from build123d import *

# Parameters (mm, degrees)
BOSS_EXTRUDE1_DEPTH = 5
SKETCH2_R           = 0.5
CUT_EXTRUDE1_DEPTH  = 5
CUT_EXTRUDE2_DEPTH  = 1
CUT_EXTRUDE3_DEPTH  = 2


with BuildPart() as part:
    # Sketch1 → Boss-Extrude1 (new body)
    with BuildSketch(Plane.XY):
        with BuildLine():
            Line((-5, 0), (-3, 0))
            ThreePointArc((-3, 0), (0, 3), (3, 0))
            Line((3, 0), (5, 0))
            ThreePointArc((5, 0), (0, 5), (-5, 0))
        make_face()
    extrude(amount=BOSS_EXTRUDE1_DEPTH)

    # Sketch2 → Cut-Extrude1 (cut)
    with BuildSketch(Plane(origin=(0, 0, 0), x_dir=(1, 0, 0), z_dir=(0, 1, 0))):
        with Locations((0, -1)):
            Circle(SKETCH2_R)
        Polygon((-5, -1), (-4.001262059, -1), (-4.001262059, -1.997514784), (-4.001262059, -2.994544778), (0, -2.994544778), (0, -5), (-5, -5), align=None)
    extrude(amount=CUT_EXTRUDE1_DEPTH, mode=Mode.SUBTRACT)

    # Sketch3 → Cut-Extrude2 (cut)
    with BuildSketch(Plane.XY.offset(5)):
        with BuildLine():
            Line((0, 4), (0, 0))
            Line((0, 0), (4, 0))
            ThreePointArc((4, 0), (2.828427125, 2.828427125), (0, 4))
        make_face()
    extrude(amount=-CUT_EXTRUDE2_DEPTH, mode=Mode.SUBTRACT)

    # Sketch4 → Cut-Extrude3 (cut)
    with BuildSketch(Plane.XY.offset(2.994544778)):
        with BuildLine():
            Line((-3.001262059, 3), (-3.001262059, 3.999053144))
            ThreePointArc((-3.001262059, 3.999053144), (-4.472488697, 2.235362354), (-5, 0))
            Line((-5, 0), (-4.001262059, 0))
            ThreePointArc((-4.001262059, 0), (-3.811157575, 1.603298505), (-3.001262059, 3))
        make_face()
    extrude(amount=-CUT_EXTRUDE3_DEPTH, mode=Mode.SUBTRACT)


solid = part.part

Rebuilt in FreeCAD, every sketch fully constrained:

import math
import FreeCAD as App
import Part
import Sketcher
Q = App.Units.Quantity


def add_polygon(sketch, points):
    """Adds a closed chain of lines whose ends are joined by coincident constraints."""
    first, n = sketch.GeometryCount, len(points)
    for a, b in zip(points, points[1:] + points[:1]):
        sketch.addGeometry(Part.LineSegment(App.Vector(*a, 0), App.Vector(*b, 0)), False)
    for i in range(n):
        sketch.addConstraint(Sketcher.Constraint("Coincident", first + i, 2, first + (i + 1) % n, 1))

doc = App.newDocument("Part")
body = doc.addObject("PartDesign::Body", "Body")

# Sketch on XY plane
sketch1 = body.newObject("Sketcher::SketchObject", "Sketch")
sketch1.AttachmentSupport = (doc.getObject("XY_Plane"), [""])
sketch1.MapMode = "FlatFace"
sketch1.addGeometry([
    Part.LineSegment(App.Vector(-5, 0, 0), App.Vector(-3, 0, 0)),
    Part.ArcOfCircle(Part.Circle(App.Vector(0, 0, 0), App.Vector(0, 0, 1), 3), math.radians(0), math.radians(180)),
    Part.LineSegment(App.Vector(3, 0, 0), App.Vector(5, 0, 0)),
    Part.ArcOfCircle(Part.Circle(App.Vector(0, 0, 0), App.Vector(0, 0, 1), 5), math.radians(0), math.radians(180)),
], False)
sketch1.addConstraint([
    Sketcher.Constraint("Coincident", 0, 2, 1, 2),
    Sketcher.Constraint("Coincident", 1, 1, 2, 1),
    Sketcher.Constraint("Coincident", 2, 2, 3, 1),
    Sketcher.Constraint("Coincident", 3, 2, 0, 1),
    Sketcher.Constraint("Horizontal", 0),
    Sketcher.Constraint("Horizontal", 2),
    Sketcher.Constraint("Coincident", 1, 3, -1, 1),
    Sketcher.Constraint("Coincident", 3, 3, -1, 1),
    Sketcher.Constraint("PointOnObject", 0, 2, -1),
    Sketcher.Constraint("PointOnObject", 1, 1, -1),
    Sketcher.Constraint("Radius", 1, Q("3 mm")),
    Sketcher.Constraint("Radius", 3, Q("5 mm")),
])
pad1 = body.newObject("PartDesign::Pad", "Pad")
pad1.Profile = sketch1
pad1.Length = 5

# Sketch on XZ plane
sketch2 = body.newObject("Sketcher::SketchObject", "Sketch001")
sketch2.AttachmentSupport = (doc.getObject("XZ_Plane"), [""])
sketch2.MapMode = "FlatFace"
sketch2.addGeometry(Part.Circle(App.Vector(0, 1, 0), App.Vector(0, 0, 1), 0.5), False)  # 0
add_polygon(sketch2, [(-4, 1), (-5, 1), (-5, 5), (0, 5), (0, 3), (-4, 3)])  # lines 1-6
sketch2.addConstraint([
    Sketcher.Constraint("Horizontal", 1),
    Sketcher.Constraint("Vertical", 2),
    Sketcher.Constraint("Horizontal", 3),
    Sketcher.Constraint("Vertical", 4),
    Sketcher.Constraint("Horizontal", 5),
    Sketcher.Constraint("Vertical", 6),
    Sketcher.Constraint("PointOnObject", 0, 3, -2),
    Sketcher.Constraint("PointOnObject", 3, 2, -2),
    Sketcher.Constraint("Horizontal", 0, 3, 1, 2),
    Sketcher.Constraint("Diameter", 0, Q("1 mm")),
    Sketcher.Constraint("DistanceX", 3, 1, 3, 2, Q("5 mm")),
    Sketcher.Constraint("DistanceY", 2, 1, 2, 2, Q("4 mm")),
    Sketcher.Constraint("DistanceY", -1, 1, 0, 3, Q("1 mm")),
    Sketcher.Constraint("DistanceX", 1, 2, 1, 1, Q("0.998738 mm")),
    Sketcher.Constraint("DistanceY", 4, 2, 4, 1, Q("2.005455 mm")),
])
pocket1 = body.newObject("PartDesign::Pocket", "Pocket")
pocket1.Profile = sketch2
pocket1.Length = 5

# Sketch on XY plane
sketch3 = body.newObject("Sketcher::SketchObject", "Sketch002")
sketch3.AttachmentSupport = (doc.getObject("XY_Plane"), [""])
sketch3.MapMode = "FlatFace"
sketch3.AttachmentOffset = App.Placement(App.Vector(0, 0, 5), App.Rotation())
sketch3.addGeometry([
    Part.LineSegment(App.Vector(0, 4, 0), App.Vector(0, 0, 0)),
    Part.LineSegment(App.Vector(0, 0, 0), App.Vector(4, 0, 0)),
    Part.ArcOfCircle(Part.Circle(App.Vector(0, 0, 0), App.Vector(0, 0, 1), 4), math.radians(0), math.radians(90)),
], False)
sketch3.addConstraint([
    Sketcher.Constraint("Coincident", 0, 2, 1, 1),
    Sketcher.Constraint("Coincident", 1, 2, 2, 1),
    Sketcher.Constraint("Coincident", 2, 2, 0, 1),
    Sketcher.Constraint("Vertical", 0),
    Sketcher.Constraint("Horizontal", 1),
    Sketcher.Constraint("Coincident", 2, 3, -1, 1),
    Sketcher.Constraint("Coincident", 0, 2, -1, 1),
    Sketcher.Constraint("Radius", 2, Q("4 mm")),
])
pocket2 = body.newObject("PartDesign::Pocket", "Pocket001")
pocket2.Profile = sketch3
pocket2.Length = 1

# Sketch on XY plane
sketch4 = body.newObject("Sketcher::SketchObject", "Sketch003")
sketch4.AttachmentSupport = (doc.getObject("XY_Plane"), [""])
sketch4.MapMode = "FlatFace"
sketch4.AttachmentOffset = App.Placement(App.Vector(0, 0, 2.994545), App.Rotation())
sketch4.addGeometry([
    Part.LineSegment(App.Vector(-3, 3, 0), App.Vector(-3, 4, 0)),
    Part.ArcOfCircle(Part.Circle(App.Vector(0, 0, 0), App.Vector(0, 0, 1), 5), math.radians(127), math.radians(180)),
    Part.LineSegment(App.Vector(-5, 0, 0), App.Vector(-4, 0, 0)),
    Part.ArcOfCircle(Part.Circle(App.Vector(0, 0.3, 0), App.Vector(0, 0, 1), 4), math.radians(138), math.radians(185)),
], False)
sketch4.addConstraint([
    Sketcher.Constraint("Coincident", 0, 2, 1, 1),
    Sketcher.Constraint("Coincident", 1, 2, 2, 1),
    Sketcher.Constraint("Coincident", 2, 2, 3, 2),
    Sketcher.Constraint("Coincident", 3, 1, 0, 1),
    Sketcher.Constraint("Vertical", 0),
    Sketcher.Constraint("Horizontal", 2),
    Sketcher.Constraint("Coincident", 1, 3, -1, 1),
    Sketcher.Constraint("PointOnObject", 1, 2, -1),
    Sketcher.Constraint("Radius", 1, Q("5 mm")),
    Sketcher.Constraint("DistanceY", -1, 1, 3, 1, Q("3 mm")),
    Sketcher.Constraint("DistanceX", 2, 2, 0, 2, Q("1 mm")),
    Sketcher.Constraint("Radius", 3, Q("3.989955 mm")),
    Sketcher.Constraint("DistanceX", 2, 1, 2, 2, Q("0.998738 mm")),
])
pocket3 = body.newObject("PartDesign::Pocket", "Pocket002")
pocket3.Profile = sketch4
pocket3.Length = 2

doc.recompute()
